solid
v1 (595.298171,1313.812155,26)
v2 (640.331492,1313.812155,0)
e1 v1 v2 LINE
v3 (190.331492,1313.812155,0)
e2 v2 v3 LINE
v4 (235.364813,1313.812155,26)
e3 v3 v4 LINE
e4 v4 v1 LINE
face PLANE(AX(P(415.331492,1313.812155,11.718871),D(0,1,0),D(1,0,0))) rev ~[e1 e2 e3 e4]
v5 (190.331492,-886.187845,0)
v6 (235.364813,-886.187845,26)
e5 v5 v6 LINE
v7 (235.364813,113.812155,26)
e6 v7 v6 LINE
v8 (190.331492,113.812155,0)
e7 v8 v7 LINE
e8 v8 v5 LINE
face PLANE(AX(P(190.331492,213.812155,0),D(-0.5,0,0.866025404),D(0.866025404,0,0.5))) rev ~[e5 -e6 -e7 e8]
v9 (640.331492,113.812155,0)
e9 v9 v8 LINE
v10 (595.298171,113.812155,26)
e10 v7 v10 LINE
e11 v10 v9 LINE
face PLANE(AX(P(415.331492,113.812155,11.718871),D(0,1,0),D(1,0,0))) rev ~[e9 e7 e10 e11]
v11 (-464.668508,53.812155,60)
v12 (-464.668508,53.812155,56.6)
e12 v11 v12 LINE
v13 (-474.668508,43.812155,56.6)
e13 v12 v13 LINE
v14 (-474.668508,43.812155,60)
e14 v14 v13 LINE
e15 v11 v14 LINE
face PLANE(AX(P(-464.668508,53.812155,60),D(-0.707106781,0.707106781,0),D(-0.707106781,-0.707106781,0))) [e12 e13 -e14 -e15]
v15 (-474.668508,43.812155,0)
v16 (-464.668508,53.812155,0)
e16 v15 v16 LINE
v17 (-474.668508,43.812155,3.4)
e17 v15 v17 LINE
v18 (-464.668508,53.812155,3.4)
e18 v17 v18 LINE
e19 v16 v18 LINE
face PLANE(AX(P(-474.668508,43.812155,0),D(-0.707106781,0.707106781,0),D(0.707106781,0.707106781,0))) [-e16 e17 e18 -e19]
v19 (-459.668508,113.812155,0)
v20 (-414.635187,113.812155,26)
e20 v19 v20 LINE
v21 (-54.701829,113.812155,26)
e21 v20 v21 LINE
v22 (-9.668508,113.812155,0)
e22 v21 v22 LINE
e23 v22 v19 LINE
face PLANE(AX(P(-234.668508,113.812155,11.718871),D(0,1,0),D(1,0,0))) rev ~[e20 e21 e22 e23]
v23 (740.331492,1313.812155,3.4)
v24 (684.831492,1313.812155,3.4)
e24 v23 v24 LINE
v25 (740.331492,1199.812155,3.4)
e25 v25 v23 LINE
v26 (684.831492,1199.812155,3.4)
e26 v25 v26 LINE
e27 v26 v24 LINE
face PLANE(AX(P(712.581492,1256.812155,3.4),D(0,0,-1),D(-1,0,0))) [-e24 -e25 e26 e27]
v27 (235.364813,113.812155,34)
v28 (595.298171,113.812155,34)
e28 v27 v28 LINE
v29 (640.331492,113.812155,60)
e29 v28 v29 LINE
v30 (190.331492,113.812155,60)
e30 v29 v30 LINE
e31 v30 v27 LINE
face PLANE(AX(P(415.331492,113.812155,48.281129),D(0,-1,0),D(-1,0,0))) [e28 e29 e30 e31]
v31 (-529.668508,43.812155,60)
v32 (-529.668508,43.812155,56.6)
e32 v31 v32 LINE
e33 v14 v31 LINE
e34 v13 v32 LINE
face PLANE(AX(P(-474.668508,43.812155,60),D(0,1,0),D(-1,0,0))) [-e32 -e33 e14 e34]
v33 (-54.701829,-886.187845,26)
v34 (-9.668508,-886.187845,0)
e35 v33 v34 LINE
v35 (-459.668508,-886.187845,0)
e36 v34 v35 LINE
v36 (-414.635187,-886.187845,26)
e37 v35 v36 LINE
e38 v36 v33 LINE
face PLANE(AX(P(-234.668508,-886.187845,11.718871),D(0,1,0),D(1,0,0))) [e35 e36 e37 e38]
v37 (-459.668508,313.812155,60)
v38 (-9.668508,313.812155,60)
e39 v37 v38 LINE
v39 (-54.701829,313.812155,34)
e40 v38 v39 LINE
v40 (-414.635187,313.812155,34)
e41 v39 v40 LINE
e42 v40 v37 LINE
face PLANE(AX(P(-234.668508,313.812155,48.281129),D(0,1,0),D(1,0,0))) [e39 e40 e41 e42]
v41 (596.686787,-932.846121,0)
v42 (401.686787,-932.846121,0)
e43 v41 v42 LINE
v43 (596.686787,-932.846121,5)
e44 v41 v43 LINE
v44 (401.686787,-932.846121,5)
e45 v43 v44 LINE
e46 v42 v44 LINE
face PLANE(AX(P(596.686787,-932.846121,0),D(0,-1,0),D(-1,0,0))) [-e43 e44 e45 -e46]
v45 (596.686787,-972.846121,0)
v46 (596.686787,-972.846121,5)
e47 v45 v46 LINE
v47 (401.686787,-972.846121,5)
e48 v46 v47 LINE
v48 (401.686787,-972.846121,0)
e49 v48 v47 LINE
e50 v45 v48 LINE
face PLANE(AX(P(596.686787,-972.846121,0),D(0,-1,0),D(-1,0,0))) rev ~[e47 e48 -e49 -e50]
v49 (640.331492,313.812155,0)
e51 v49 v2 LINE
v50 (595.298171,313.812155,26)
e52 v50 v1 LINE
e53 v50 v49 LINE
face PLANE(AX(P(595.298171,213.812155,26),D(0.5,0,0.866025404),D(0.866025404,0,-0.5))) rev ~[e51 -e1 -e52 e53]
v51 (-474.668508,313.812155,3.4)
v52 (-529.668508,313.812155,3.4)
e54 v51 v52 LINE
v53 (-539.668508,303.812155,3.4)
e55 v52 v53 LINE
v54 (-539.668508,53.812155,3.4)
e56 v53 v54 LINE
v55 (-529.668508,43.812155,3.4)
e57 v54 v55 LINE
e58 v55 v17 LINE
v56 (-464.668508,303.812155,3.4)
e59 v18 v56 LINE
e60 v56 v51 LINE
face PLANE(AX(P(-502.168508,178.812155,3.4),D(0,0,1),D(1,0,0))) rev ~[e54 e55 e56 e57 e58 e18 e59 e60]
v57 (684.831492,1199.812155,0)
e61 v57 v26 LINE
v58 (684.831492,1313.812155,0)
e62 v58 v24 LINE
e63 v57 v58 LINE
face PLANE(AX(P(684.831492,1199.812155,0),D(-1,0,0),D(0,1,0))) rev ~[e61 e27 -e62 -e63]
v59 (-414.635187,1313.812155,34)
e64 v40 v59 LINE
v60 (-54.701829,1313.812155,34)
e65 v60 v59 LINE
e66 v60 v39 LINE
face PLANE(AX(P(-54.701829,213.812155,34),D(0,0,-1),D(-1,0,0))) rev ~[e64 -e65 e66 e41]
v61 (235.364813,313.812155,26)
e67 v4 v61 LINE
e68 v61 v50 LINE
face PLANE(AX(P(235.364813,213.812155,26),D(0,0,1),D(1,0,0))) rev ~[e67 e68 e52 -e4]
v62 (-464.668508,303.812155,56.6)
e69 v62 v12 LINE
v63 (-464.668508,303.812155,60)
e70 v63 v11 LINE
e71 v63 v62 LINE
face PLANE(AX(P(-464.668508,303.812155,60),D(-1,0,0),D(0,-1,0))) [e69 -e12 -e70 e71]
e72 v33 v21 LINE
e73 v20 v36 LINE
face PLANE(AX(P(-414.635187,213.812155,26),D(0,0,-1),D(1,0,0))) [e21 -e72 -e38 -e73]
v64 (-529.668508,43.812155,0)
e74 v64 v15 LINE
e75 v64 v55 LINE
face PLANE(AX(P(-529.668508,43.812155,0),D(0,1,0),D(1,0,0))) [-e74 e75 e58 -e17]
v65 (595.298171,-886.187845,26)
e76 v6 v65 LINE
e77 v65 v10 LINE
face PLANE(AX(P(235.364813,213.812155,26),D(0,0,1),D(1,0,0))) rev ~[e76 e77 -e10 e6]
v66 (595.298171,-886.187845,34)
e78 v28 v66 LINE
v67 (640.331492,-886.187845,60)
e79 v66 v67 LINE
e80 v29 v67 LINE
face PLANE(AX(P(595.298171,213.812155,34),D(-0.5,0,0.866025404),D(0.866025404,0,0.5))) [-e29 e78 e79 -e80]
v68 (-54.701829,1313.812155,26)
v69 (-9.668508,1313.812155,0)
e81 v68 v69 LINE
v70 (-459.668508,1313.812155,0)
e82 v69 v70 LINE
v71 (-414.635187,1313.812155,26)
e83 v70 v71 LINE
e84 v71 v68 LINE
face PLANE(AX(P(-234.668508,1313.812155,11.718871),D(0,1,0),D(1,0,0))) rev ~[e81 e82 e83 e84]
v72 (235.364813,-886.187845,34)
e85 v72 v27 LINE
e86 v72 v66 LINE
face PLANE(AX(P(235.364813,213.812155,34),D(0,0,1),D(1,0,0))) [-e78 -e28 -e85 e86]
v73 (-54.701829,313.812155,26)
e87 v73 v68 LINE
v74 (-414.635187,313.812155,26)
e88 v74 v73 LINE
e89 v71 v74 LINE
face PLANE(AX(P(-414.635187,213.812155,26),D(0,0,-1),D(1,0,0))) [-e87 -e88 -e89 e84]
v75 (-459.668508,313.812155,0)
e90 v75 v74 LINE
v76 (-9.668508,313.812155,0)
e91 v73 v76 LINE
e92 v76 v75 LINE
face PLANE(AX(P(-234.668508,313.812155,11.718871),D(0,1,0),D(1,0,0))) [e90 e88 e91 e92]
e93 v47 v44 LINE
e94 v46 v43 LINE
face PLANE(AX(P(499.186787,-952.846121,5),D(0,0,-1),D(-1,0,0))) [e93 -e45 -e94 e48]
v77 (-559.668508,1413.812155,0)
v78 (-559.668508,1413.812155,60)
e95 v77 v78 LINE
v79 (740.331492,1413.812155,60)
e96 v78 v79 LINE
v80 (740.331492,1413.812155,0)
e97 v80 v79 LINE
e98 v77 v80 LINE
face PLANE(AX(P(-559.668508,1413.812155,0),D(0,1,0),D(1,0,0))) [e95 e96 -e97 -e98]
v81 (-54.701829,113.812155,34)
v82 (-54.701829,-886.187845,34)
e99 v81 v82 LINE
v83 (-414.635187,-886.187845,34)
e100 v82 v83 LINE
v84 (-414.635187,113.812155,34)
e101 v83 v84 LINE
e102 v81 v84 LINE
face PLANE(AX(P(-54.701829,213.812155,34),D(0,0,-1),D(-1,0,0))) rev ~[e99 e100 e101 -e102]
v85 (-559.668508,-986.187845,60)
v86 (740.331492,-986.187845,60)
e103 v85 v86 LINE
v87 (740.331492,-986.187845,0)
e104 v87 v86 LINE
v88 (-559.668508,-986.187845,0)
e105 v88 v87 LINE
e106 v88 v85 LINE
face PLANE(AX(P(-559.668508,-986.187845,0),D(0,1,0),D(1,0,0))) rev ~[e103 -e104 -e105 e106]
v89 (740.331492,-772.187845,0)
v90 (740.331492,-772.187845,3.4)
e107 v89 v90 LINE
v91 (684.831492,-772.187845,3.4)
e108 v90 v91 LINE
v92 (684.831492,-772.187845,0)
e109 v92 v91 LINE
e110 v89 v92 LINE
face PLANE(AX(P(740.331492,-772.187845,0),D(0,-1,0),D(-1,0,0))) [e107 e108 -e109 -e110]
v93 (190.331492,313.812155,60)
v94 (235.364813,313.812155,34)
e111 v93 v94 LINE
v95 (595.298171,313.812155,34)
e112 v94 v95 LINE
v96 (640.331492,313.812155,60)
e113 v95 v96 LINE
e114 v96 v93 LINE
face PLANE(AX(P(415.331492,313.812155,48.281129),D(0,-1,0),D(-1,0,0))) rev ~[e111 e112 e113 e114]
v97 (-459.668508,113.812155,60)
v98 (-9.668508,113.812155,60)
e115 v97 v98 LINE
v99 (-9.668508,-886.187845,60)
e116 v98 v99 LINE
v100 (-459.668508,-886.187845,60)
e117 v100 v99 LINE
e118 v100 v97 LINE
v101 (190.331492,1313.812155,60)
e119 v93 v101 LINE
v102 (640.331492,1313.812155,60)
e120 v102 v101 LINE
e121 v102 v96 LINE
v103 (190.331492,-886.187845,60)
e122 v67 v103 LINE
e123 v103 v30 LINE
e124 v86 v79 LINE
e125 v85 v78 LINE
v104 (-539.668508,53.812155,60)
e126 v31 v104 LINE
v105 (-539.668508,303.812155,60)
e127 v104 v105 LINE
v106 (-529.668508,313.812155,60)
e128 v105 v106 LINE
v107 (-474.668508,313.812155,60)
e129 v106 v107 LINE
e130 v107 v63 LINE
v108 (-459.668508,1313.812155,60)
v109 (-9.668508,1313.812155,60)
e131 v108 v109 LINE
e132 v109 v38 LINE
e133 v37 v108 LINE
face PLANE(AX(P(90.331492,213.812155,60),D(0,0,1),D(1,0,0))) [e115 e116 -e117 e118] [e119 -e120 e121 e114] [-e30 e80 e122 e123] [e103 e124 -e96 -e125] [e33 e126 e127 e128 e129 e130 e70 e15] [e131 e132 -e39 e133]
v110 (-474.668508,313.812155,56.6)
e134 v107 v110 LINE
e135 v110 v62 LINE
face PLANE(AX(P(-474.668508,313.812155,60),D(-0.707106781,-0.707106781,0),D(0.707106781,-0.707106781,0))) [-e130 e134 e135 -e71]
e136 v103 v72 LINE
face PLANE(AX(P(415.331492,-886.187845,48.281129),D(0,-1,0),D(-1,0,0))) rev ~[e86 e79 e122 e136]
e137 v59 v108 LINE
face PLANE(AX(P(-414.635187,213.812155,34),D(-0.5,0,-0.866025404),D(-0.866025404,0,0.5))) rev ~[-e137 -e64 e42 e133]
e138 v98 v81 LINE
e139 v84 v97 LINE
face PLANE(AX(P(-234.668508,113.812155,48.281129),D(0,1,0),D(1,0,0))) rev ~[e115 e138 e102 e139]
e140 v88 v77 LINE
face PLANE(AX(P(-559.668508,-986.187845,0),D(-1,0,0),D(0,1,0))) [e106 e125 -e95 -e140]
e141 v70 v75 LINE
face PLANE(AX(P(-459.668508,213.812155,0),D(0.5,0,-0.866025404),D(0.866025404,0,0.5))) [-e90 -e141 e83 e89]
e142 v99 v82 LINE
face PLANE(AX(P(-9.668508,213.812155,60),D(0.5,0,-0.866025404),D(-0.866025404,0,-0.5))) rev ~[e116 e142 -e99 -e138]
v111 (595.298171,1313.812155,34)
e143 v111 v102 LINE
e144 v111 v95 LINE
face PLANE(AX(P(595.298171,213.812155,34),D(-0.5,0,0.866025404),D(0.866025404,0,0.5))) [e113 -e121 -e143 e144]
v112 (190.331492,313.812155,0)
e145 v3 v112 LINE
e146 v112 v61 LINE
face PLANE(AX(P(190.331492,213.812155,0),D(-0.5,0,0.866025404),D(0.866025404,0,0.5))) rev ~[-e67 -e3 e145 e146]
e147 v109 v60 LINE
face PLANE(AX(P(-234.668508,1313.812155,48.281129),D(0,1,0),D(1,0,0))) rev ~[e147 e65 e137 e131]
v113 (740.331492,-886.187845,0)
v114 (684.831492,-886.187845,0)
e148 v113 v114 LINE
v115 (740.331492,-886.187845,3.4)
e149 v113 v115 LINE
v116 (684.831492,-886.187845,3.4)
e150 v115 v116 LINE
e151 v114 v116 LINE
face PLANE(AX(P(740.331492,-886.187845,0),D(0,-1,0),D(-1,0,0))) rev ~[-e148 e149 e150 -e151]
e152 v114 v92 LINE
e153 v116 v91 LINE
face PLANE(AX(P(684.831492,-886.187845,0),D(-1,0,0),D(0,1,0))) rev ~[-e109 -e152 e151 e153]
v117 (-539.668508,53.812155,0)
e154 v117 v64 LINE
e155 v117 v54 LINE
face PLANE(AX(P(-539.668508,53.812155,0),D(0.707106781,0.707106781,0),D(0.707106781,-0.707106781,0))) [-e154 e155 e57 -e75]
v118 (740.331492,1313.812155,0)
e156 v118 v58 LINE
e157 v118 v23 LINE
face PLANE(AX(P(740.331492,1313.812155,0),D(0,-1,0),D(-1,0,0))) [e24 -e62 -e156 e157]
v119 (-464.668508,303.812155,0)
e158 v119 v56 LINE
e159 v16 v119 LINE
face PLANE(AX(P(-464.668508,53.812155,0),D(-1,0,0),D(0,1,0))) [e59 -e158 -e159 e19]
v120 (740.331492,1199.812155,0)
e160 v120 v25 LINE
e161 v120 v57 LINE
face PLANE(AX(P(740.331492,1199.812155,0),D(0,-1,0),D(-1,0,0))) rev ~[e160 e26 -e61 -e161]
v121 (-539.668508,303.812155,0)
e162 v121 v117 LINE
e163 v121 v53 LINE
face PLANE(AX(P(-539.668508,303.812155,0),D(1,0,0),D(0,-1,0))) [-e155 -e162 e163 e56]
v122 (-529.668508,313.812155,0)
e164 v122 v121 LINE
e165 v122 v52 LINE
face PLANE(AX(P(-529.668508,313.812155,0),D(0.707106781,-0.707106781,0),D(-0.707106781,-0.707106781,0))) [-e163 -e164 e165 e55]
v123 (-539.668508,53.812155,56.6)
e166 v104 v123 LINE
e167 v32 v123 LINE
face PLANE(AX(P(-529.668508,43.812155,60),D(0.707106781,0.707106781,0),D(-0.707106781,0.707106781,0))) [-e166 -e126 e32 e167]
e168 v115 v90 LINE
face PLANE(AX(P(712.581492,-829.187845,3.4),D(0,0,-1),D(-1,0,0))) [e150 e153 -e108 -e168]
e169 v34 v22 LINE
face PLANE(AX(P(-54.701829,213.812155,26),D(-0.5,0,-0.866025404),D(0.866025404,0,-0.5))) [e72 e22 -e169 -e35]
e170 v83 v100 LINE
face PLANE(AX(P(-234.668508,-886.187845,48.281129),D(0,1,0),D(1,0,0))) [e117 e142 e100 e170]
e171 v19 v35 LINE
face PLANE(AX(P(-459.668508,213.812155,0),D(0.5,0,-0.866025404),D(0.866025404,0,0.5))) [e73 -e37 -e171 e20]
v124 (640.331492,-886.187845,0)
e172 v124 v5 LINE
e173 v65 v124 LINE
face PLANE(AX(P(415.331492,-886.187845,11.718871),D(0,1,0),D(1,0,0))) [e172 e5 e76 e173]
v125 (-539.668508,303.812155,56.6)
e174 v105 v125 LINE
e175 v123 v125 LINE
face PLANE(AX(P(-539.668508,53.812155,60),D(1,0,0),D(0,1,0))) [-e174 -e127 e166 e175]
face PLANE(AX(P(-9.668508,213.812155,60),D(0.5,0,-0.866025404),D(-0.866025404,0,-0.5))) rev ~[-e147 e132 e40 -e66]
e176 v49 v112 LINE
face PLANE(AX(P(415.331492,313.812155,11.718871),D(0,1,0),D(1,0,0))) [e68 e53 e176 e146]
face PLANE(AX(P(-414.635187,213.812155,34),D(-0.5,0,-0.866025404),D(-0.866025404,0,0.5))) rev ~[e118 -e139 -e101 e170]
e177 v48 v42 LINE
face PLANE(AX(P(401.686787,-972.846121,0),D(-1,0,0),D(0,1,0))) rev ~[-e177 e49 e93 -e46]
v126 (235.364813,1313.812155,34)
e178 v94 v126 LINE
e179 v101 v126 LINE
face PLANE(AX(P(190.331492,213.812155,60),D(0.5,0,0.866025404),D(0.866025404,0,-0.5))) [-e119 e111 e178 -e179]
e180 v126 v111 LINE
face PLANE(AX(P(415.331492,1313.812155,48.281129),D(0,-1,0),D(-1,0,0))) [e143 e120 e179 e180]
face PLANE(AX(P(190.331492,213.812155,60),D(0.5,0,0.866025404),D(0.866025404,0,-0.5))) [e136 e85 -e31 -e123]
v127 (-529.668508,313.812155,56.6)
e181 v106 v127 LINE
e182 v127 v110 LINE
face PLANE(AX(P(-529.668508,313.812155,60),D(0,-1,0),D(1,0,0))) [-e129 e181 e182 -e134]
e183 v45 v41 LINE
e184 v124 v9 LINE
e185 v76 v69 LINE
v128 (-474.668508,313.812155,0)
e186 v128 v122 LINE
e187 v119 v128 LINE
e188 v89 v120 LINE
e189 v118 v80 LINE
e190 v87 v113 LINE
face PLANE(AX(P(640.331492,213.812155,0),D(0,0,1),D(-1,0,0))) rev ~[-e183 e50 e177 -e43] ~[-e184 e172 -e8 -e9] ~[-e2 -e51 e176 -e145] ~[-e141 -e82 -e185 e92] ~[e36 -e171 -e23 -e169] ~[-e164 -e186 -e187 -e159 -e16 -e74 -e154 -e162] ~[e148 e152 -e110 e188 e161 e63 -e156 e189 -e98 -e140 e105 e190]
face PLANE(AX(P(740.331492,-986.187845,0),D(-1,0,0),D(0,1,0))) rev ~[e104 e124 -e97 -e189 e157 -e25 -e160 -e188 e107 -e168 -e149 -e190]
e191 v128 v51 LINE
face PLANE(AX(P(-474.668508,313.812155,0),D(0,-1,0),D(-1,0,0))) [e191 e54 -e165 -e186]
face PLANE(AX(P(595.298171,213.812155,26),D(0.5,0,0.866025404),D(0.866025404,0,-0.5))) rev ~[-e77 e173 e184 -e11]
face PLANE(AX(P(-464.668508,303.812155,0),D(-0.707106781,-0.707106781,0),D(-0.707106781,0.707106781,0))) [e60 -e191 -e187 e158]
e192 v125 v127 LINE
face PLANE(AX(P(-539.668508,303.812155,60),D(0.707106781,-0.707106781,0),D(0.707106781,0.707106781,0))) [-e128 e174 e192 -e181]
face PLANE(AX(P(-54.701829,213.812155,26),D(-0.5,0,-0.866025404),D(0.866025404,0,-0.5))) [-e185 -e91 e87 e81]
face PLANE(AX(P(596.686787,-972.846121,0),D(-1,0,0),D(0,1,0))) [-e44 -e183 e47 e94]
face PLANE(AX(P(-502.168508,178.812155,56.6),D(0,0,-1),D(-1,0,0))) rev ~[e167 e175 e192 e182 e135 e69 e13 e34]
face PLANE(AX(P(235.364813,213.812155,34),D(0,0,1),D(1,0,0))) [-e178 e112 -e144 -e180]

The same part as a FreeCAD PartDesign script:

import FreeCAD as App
import Part
import Sketcher
from FreeCAD import Vector
Q = App.Units.Quantity

doc = App.newDocument("Part")
params = doc.addObject("Spreadsheet::Sheet", "Params")
for row, (alias, value) in enumerate([
    ("sketch1_width", "1300 mm"),
    ("sketch1_height", "2400 mm"),
    ("pad1_length", "60 mm"),
    ("sketch2_width", "450 mm"),
    ("sketch2_length", "52 mm"),
    ("pocket1_length", "1100 mm"),
    ("pocket1_length2", "1100 mm"),
    ("sketch3_width", "450 mm"),
    ("sketch3_length", "52 mm"),
    ("pad2_length", "100 mm"),
    ("pad2_length2", "100 mm"),
    ("sketch4_width", "55 mm"),
    ("sketch4_height", "114 mm"),
    ("sketch4_height2", "250 mm"),
    ("sketch4_width2", "55.5 mm"),
    ("pocket2_length", "3.4 mm"),
    ("sketch5_width", "55 mm"),
    ("sketch5_height", "250 mm"),
    ("pocket3_length", "3.4 mm"),
    ("sketch6_width", "195 mm"),
    ("sketch6_height", "40 mm"),
    ("pocket4_length", "5 mm"),
], start=1):
    params.set(f"A{row}", alias)
    params.set(f"B{row}", "=" + value)
    params.setAlias(f"B{row}", alias)

body = doc.addObject("PartDesign::Body", "Body")

# Sketch on XY plane
sketch1 = body.newObject("Sketcher::SketchObject", "Sketch")
sketch1.AttachmentSupport = (doc.getObject("XY_Plane"), [""])
sketch1.MapMode = "FlatFace"
sketch1.addGeometry(Part.LineSegment(Vector(-559.668508, 1413.812155, 0), Vector(-559.668508, -986.187845, 0)), False)
sketch1.addGeometry(Part.LineSegment(Vector(-559.668508, -986.187845, 0), Vector(740.331492, -986.187845, 0)), False)
sketch1.addGeometry(Part.LineSegment(Vector(740.331492, -986.187845, 0), Vector(740.331492, 1413.812155, 0)), False)
sketch1.addGeometry(Part.LineSegment(Vector(740.331492, 1413.812155, 0), Vector(-559.668508, 1413.812155, 0)), False)
sketch1.addConstraint(Sketcher.Constraint("Coincident", 0, 2, 1, 1))
sketch1.addConstraint(Sketcher.Constraint("Coincident", 1, 2, 2, 1))
sketch1.addConstraint(Sketcher.Constraint("Coincident", 2, 2, 3, 1))
sketch1.addConstraint(Sketcher.Constraint("Coincident", 3, 2, 0, 1))
sketch1.addConstraint(Sketcher.Constraint("Vertical", 0))
sketch1.addConstraint(Sketcher.Constraint("Horizontal", 1))
sketch1.addConstraint(Sketcher.Constraint("Vertical", 2))
sketch1.addConstraint(Sketcher.Constraint("Horizontal", 3))
sketch1.addConstraint(Sketcher.Constraint("DistanceX", 1, 1, 1, 2, Q("1300 mm")))
sketch1.addConstraint(Sketcher.Constraint("DistanceY", 0, 2, 0, 1, Q("2400 mm")))
sketch1.addConstraint(Sketcher.Constraint("DistanceX", 0, 2, -1, 1, Q("559.668508 mm")))
sketch1.addConstraint(Sketcher.Constraint("DistanceY", 0, 2, -1, 1, Q("986.187845 mm")))
sketch1.setExpression("Constraints[8]", "Params.sketch1_width")
sketch1.setExpression("Constraints[9]", "Params.sketch1_height")
pad1 = body.newObject("PartDesign::Pad", "Pad")
pad1.Profile = sketch1
pad1.setExpression("Length", "Params.pad1_length")

# Sketch on XZ plane
sketch2 = body.newObject("Sketcher::SketchObject", "Sketch001")
sketch2.AttachmentSupport = (doc.getObject("XZ_Plane"), [""])
sketch2.MapMode = "FlatFace"
sketch2.AttachmentOffset = App.Placement(Vector(0, 0, -213.812155), App.Rotation())
sketch2.addGeometry(Part.LineSegment(Vector(235.364813, 26, 0), Vector(190.331492, 0, 0)), False)
sketch2.addGeometry(Part.LineSegment(Vector(190.331492, 0, 0), Vector(640.331492, 0, 0)), False)
sketch2.addGeometry(Part.LineSegment(Vector(640.331492, 0, 0), Vector(595.298171, 26, 0)), False)
sketch2.addGeometry(Part.LineSegment(Vector(595.298171, 26, 0), Vector(235.364813, 26, 0)), False)
sketch2.addGeometry(Part.LineSegment(Vector(-459.668508, 0, 0), Vector(-9.668508, 0, 0)), False)
sketch2.addGeometry(Part.LineSegment(Vector(-9.668508, 0, 0), Vector(-54.701829, 26, 0)), False)
sketch2.addGeometry(Part.LineSegment(Vector(-54.701829, 26, 0), Vector(-414.635187, 26, 0)), False)
sketch2.addGeometry(Part.LineSegment(Vector(-414.635187, 26, 0), Vector(-459.668508, 0, 0)), False)
sketch2.addGeometry(Part.LineSegment(Vector(-459.668508, 60, 0), Vector(-414.635187, 34, 0)), False)
sketch2.addGeometry(Part.LineSegment(Vector(-414.635187, 34, 0), Vector(-54.701829, 34, 0)), False)
sketch2.addGeometry(Part.LineSegment(Vector(-54.701829, 34, 0), Vector(-9.668508, 60, 0)), False)
sketch2.addGeometry(Part.LineSegment(Vector(-9.668508, 60, 0), Vector(-459.668508, 60, 0)), False)
sketch2.addGeometry(Part.LineSegment(Vector(190.331492, 60, 0), Vector(235.364813, 34, 0)), False)
sketch2.addGeometry(Part.LineSegment(Vector(235.364813, 34, 0), Vector(595.298171, 34, 0)), False)
sketch2.addGeometry(Part.LineSegment(Vector(595.298171, 34, 0), Vector(640.331492, 60, 0)), False)
sketch2.addGeometry(Part.LineSegment(Vector(640.331492, 60, 0), Vector(190.331492, 60, 0)), False)
sketch2.addConstraint(Sketcher.Constraint("Coincident", 0, 2, 1, 1))
sketch2.addConstraint(Sketcher.Constraint("Coincident", 1, 2, 2, 1))
sketch2.addConstraint(Sketcher.Constraint("Coincident", 2, 2, 3, 1))
sketch2.addConstraint(Sketcher.Constraint("Coincident", 3, 2, 0, 1))
sketch2.addConstraint(Sketcher.Constraint("Coincident", 4, 2, 5, 1))
sketch2.addConstraint(Sketcher.Constraint("Coincident", 5, 2, 6, 1))
sketch2.addConstraint(Sketcher.Constraint("Coincident", 6, 2, 7, 1))
sketch2.addConstraint(Sketcher.Constraint("Coincident", 7, 2, 4, 1))
sketch2.addConstraint(Sketcher.Constraint("Coincident", 8, 2, 9, 1))
sketch2.addConstraint(Sketcher.Constraint("Coincident", 9, 2, 10, 1))
sketch2.addConstraint(Sketcher.Constraint("Coincident", 10, 2, 11, 1))
sketch2.addConstraint(Sketcher.Constraint("Coincident", 11, 2, 8, 1))
sketch2.addConstraint(Sketcher.Constraint("Coincident", 12, 2, 13, 1))
sketch2.addConstraint(Sketcher.Constraint("Coincident", 13, 2, 14, 1))
sketch2.addConstraint(Sketcher.Constraint("Coincident", 14, 2, 15, 1))
sketch2.addConstraint(Sketcher.Constraint("Coincident", 15, 2, 12, 1))
sketch2.addConstraint(Sketcher.Constraint("Horizontal", 1))
sketch2.addConstraint(Sketcher.Constraint("Horizontal", 3))
sketch2.addConstraint(Sketcher.Constraint("Horizontal", 4))
sketch2.addConstraint(Sketcher.Constraint("Horizontal", 6))
sketch2.addConstraint(Sketcher.Constraint("Horizontal", 9))
sketch2.addConstraint(Sketcher.Constraint("Horizontal", 11))
sketch2.addConstraint(Sketcher.Constraint("Horizontal", 13))
sketch2.addConstraint(Sketcher.Constraint("Horizontal", 15))
sketch2.addConstraint(Sketcher.Constraint("PointOnObject", 0, 2, -1))
sketch2.addConstraint(Sketcher.Constraint("PointOnObject", 4, 2, -1))
sketch2.addConstraint(Sketcher.Constraint("Parallel", 2, 5))
sketch2.addConstraint(Sketcher.Constraint("Parallel", 0, 7))
sketch2.addConstraint(Sketcher.Constraint("Parallel", 5, 8))
sketch2.addConstraint(Sketcher.Constraint("Parallel", 7, 10))
sketch2.addConstraint(Sketcher.Constraint("Parallel", 8, 12))
sketch2.addConstraint(Sketcher.Constraint("Parallel", 10, 14))
sketch2.addConstraint(Sketcher.Constraint("Horizontal", 3, 2, 5, 2))
sketch2.addConstraint(Sketcher.Constraint("Horizontal", 9, 2, 12, 2))
sketch2.addConstraint(Sketcher.Constraint("Horizontal", 11, 2, 14, 2))
sketch2.addConstraint(Sketcher.Constraint("Vertical", 6, 2, 8, 2))
sketch2.addConstraint(Sketcher.Constraint("Vertical", 5, 2, 9, 2))
sketch2.addConstraint(Sketcher.Constraint("Vertical", 4, 2, 10, 2))
sketch2.addConstraint(Sketcher.Constraint("Vertical", 7, 2, 11, 2))
sketch2.addConstraint(Sketcher.Constraint("Vertical", 3, 2, 12, 2))
sketch2.addConstraint(Sketcher.Constraint("Vertical", 2, 2, 13, 2))
sketch2.addConstraint(Sketcher.Constraint("Equal", 1, 4))
sketch2.addConstraint(Sketcher.Constraint("DistanceX", 1, 1, 1, 2, Q("450 mm")))
sketch2.addConstraint(Sketcher.Constraint("Angle", 0, Q("-150 deg")))
sketch2.addConstraint(Sketcher.Constraint("Distance", 0, Q("52 mm")))
sketch2.addConstraint(Sketcher.Constraint("DistanceY", -1, 1, 8, 2, Q("34 mm")))
sketch2.addConstraint(Sketcher.Constraint("DistanceX", 4, 2, 0, 2, Q("200 mm")))
sketch2.addConstraint(Sketcher.Constraint("DistanceX", -1, 1, 0, 2, Q("190.331492 mm")))
sketch2.setExpression("Constraints[42]", "Params.sketch2_width")
sketch2.setExpression("Constraints[44]", "Params.sketch2_length")
pocket1 = body.newObject("PartDesign::Pocket", "Pocket")
pocket1.Profile = sketch2
pocket1.Type = "TwoLengths"
pocket1.setExpression("Length", "Params.pocket1_length")
pocket1.setExpression("Length2", "Params.pocket1_length2")
pocket1.Reversed = True

# Sketch on XZ plane
sketch3 = body.newObject("Sketcher::SketchObject", "Sketch002")
sketch3.AttachmentSupport = (doc.getObject("XZ_Plane"), [""])
sketch3.MapMode = "FlatFace"
sketch3.AttachmentOffset = App.Placement(Vector(0, 0, -213.812155), App.Rotation())
sketch3.addGeometry(Part.LineSegment(Vector(235.364813, 26, 0), Vector(190.331492, 0, 0)), False)
sketch3.addGeometry(Part.LineSegment(Vector(190.331492, 0, 0), Vector(640.331492, 0, 0)), False)
sketch3.addGeometry(Part.LineSegment(Vector(640.331492, 0, 0), Vector(595.298171, 26, 0)), False)
sketch3.addGeometry(Part.LineSegment(Vector(595.298171, 26, 0), Vector(235.364813, 26, 0)), False)
sketch3.addGeometry(Part.LineSegment(Vector(-459.668508, 0, 0), Vector(-9.668508, 0, 0)), False)
sketch3.addGeometry(Part.LineSegment(Vector(-9.668508, 0, 0), Vector(-54.701829, 26, 0)), False)
sketch3.addGeometry(Part.LineSegment(Vector(-54.701829, 26, 0), Vector(-414.635187, 26, 0)), False)
sketch3.addGeometry(Part.LineSegment(Vector(-414.635187, 26, 0), Vector(-459.668508, 0, 0)), False)
sketch3.addGeometry(Part.LineSegment(Vector(-459.668508, 60, 0), Vector(-414.635187, 34, 0)), False)
sketch3.addGeometry(Part.LineSegment(Vector(-414.635187, 34, 0), Vector(-54.701829, 34, 0)), False)
sketch3.addGeometry(Part.LineSegment(Vector(-54.701829, 34, 0), Vector(-9.668508, 60, 0)), False)
sketch3.addGeometry(Part.LineSegment(Vector(-9.668508, 60, 0), Vector(-459.668508, 60, 0)), False)
sketch3.addGeometry(Part.LineSegment(Vector(190.331492, 60, 0), Vector(235.364813, 34, 0)), False)
sketch3.addGeometry(Part.LineSegment(Vector(235.364813, 34, 0), Vector(595.298171, 34, 0)), False)
sketch3.addGeometry(Part.LineSegment(Vector(595.298171, 34, 0), Vector(640.331492, 60, 0)), False)
sketch3.addGeometry(Part.LineSegment(Vector(640.331492, 60, 0), Vector(190.331492, 60, 0)), False)
sketch3.addConstraint(Sketcher.Constraint("Coincident", 0, 2, 1, 1))
sketch3.addConstraint(Sketcher.Constraint("Coincident", 1, 2, 2, 1))
sketch3.addConstraint(Sketcher.Constraint("Coincident", 2, 2, 3, 1))
sketch3.addConstraint(Sketcher.Constraint("Coincident", 3, 2, 0, 1))
sketch3.addConstraint(Sketcher.Constraint("Coincident", 4, 2, 5, 1))
sketch3.addConstraint(Sketcher.Constraint("Coincident", 5, 2, 6, 1))
sketch3.addConstraint(Sketcher.Constraint("Coincident", 6, 2, 7, 1))
sketch3.addConstraint(Sketcher.Constraint("Coincident", 7, 2, 4, 1))
sketch3.addConstraint(Sketcher.Constraint("Coincident", 8, 2, 9, 1))
sketch3.addConstraint(Sketcher.Constraint("Coincident", 9, 2, 10, 1))
sketch3.addConstraint(Sketcher.Constraint("Coincident", 10, 2, 11, 1))
sketch3.addConstraint(Sketcher.Constraint("Coincident", 11, 2, 8, 1))
sketch3.addConstraint(Sketcher.Constraint("Coincident", 12, 2, 13, 1))
sketch3.addConstraint(Sketcher.Constraint("Coincident", 13, 2, 14, 1))
sketch3.addConstraint(Sketcher.Constraint("Coincident", 14, 2, 15, 1))
sketch3.addConstraint(Sketcher.Constraint("Coincident", 15, 2, 12, 1))
sketch3.addConstraint(Sketcher.Constraint("Horizontal", 1))
sketch3.addConstraint(Sketcher.Constraint("Horizontal", 3))
sketch3.addConstraint(Sketcher.Constraint("Horizontal", 4))
sketch3.addConstraint(Sketcher.Constraint("Horizontal", 6))
sketch3.addConstraint(Sketcher.Constraint("Horizontal", 9))
sketch3.addConstraint(Sketcher.Constraint("Horizontal", 11))
sketch3.addConstraint(Sketcher.Constraint("Horizontal", 13))
sketch3.addConstraint(Sketcher.Constraint("Horizontal", 15))
sketch3.addConstraint(Sketcher.Constraint("PointOnObject", 0, 2, -1))
sketch3.addConstraint(Sketcher.Constraint("PointOnObject", 4, 2, -1))
sketch3.addConstraint(Sketcher.Constraint("Parallel", 2, 5))
sketch3.addConstraint(Sketcher.Constraint("Parallel", 0, 7))
sketch3.addConstraint(Sketcher.Constraint("Parallel", 5, 8))
sketch3.addConstraint(Sketcher.Constraint("Parallel", 7, 10))
sketch3.addConstraint(Sketcher.Constraint("Parallel", 8, 12))
sketch3.addConstraint(Sketcher.Constraint("Parallel", 10, 14))
sketch3.addConstraint(Sketcher.Constraint("Horizontal", 3, 2, 5, 2))
sketch3.addConstraint(Sketcher.Constraint("Horizontal", 9, 2, 12, 2))
sketch3.addConstraint(Sketcher.Constraint("Horizontal", 11, 2, 14, 2))
sketch3.addConstraint(Sketcher.Constraint("Vertical", 6, 2, 8, 2))
sketch3.addConstraint(Sketcher.Constraint("Vertical", 5, 2, 9, 2))
sketch3.addConstraint(Sketcher.Constraint("Vertical", 4, 2, 10, 2))
sketch3.addConstraint(Sketcher.Constraint("Vertical", 7, 2, 11, 2))
sketch3.addConstraint(Sketcher.Constraint("Vertical", 3, 2, 12, 2))
sketch3.addConstraint(Sketcher.Constraint("Vertical", 2, 2, 13, 2))
sketch3.addConstraint(Sketcher.Constraint("Equal", 1, 4))
sketch3.addConstraint(Sketcher.Constraint("DistanceX", 1, 1, 1, 2, Q("450 mm")))
sketch3.addConstraint(Sketcher.Constraint("Angle", 0, Q("-150 deg")))
sketch3.addConstraint(Sketcher.Constraint("Distance", 0, Q("52 mm")))
sketch3.addConstraint(Sketcher.Constraint("DistanceY", -1, 1, 8, 2, Q("34 mm")))
sketch3.addConstraint(Sketcher.Constraint("DistanceX", 4, 2, 0, 2, Q("200 mm")))
sketch3.addConstraint(Sketcher.Constraint("DistanceX", -1, 1, 0, 2, Q("190.331492 mm")))
sketch3.setExpression("Constraints[42]", "Params.sketch3_width")
sketch3.setExpression("Constraints[44]", "Params.sketch3_length")
pad2 = body.newObject("PartDesign::Pad", "Pad001")
pad2.Profile = sketch3
pad2.Type = "TwoLengths"
pad2.setExpression("Length", "Params.pad2_length")
pad2.setExpression("Length2", "Params.pad2_length2")

# Sketch on XY plane
sketch4 = body.newObject("Sketcher::SketchObject", "Sketch003")
sketch4.AttachmentSupport = (doc.getObject("XY_Plane"), [""])
sketch4.MapMode = "FlatFace"
sketch4.addGeometry(Part.LineSegment(Vector(740.331492, 1313.812155, 0), Vector(740.331492, 1199.812155, 0)), False)
sketch4.addGeometry(Part.LineSegment(Vector(740.331492, 1199.812155, 0), Vector(684.831492, 1199.812155, 0)), False)
sketch4.addGeometry(Part.LineSegment(Vector(684.831492, 1199.812155, 0), Vector(684.831492, 1313.812155, 0)), False)
sketch4.addGeometry(Part.LineSegment(Vector(684.831492, 1313.812155, 0), Vector(740.331492, 1313.812155, 0)), False)
sketch4.addGeometry(Part.LineSegment(Vector(740.331492, -772.187845, 0), Vector(740.331492, -886.187845, 0)), False)
sketch4.addGeometry(Part.LineSegment(Vector(740.331492, -886.187845, 0), Vector(684.831492, -886.187845, 0)), False)
sketch4.addGeometry(Part.LineSegment(Vector(684.831492, -886.187845, 0), Vector(684.831492, -772.187845, 0)), False)
sketch4.addGeometry(Part.LineSegment(Vector(684.831492, -772.187845, 0), Vector(740.331492, -772.187845, 0)), False)
sketch4.addGeometry(Part.LineSegment(Vector(-529.668508, 313.812155, 0), Vector(-474.668508, 313.812155, 0)), False)
sketch4.addGeometry(Part.LineSegment(Vector(-474.668508, 313.812155, 0), Vector(-464.668508, 303.812155, 0)), False)
sketch4.addGeometry(Part.LineSegment(Vector(-464.668508, 303.812155, 0), Vector(-464.668508, 53.812155, 0)), False)
sketch4.addGeometry(Part.LineSegment(Vector(-464.668508, 53.812155, 0), Vector(-474.668508, 43.812155, 0)), False)
sketch4.addGeometry(Part.LineSegment(Vector(-474.668508, 43.812155, 0), Vector(-529.668508, 43.812155, 0)), False)
sketch4.addGeometry(Part.LineSegment(Vector(-529.668508, 43.812155, 0), Vector(-539.668508, 53.812155, 0)), False)
sketch4.addGeometry(Part.LineSegment(Vector(-539.668508, 53.812155, 0), Vector(-539.668508, 303.812155, 0)), False)
sketch4.addGeometry(Part.LineSegment(Vector(-539.668508, 303.812155, 0), Vector(-529.668508, 313.812155, 0)), False)
sketch4.addConstraint(Sketcher.Constraint("Coincident", 0, 2, 1, 1))
sketch4.addConstraint(Sketcher.Constraint("Coincident", 1, 2, 2, 1))
sketch4.addConstraint(Sketcher.Constraint("Coincident", 2, 2, 3, 1))
sketch4.addConstraint(Sketcher.Constraint("Coincident", 3, 2, 0, 1))
sketch4.addConstraint(Sketcher.Constraint("Coincident", 4, 2, 5, 1))
sketch4.addConstraint(Sketcher.Constraint("Coincident", 5, 2, 6, 1))
sketch4.addConstraint(Sketcher.Constraint("Coincident", 6, 2, 7, 1))
sketch4.addConstraint(Sketcher.Constraint("Coincident", 7, 2, 4, 1))
sketch4.addConstraint(Sketcher.Constraint("Coincident", 8, 2, 9, 1))
sketch4.addConstraint(Sketcher.Constraint("Coincident", 9, 2, 10, 1))
sketch4.addConstraint(Sketcher.Constraint("Coincident", 10, 2, 11, 1))
sketch4.addConstraint(Sketcher.Constraint("Coincident", 11, 2, 12, 1))
sketch4.addConstraint(Sketcher.Constraint("Coincident", 12, 2, 13, 1))
sketch4.addConstraint(Sketcher.Constraint("Coincident", 13, 2, 14, 1))
sketch4.addConstraint(Sketcher.Constraint("Coincident", 14, 2, 15, 1))
sketch4.addConstraint(Sketcher.Constraint("Coincident", 15, 2, 8, 1))
sketch4.addConstraint(Sketcher.Constraint("Vertical", 0))
sketch4.addConstraint(Sketcher.Constraint("Horizontal", 1))
sketch4.addConstraint(Sketcher.Constraint("Vertical", 2))
sketch4.addConstraint(Sketcher.Constraint("Horizontal", 3))
sketch4.addConstraint(Sketcher.Constraint("Vertical", 4))
sketch4.addConstraint(Sketcher.Constraint("Horizontal", 5))
sketch4.addConstraint(Sketcher.Constraint("Vertical", 6))
sketch4.addConstraint(Sketcher.Constraint("Horizontal", 7))
sketch4.addConstraint(Sketcher.Constraint("Horizontal", 8))
sketch4.addConstraint(Sketcher.Constraint("Vertical", 10))
sketch4.addConstraint(Sketcher.Constraint("Horizontal", 12))
sketch4.addConstraint(Sketcher.Constraint("Vertical", 14))
sketch4.addConstraint(Sketcher.Constraint("Perpendicular", 9, 11))
sketch4.addConstraint(Sketcher.Constraint("Perpendicular", 11, 13))
sketch4.addConstraint(Sketcher.Constraint("Perpendicular", 13, 15))
sketch4.addConstraint(Sketcher.Constraint("Horizontal", 10, 2, 13, 2))
sketch4.addConstraint(Sketcher.Constraint("Horizontal", 9, 2, 14, 2))
sketch4.addConstraint(Sketcher.Constraint("Vertical", 3, 2, 4, 2))
sketch4.addConstraint(Sketcher.Constraint("Vertical", 2, 2, 5, 2))
sketch4.addConstraint(Sketcher.Constraint("Vertical", 8, 2, 11, 2))
sketch4.addConstraint(Sketcher.Constraint("Vertical", 12, 2, 15, 2))
sketch4.addConstraint(Sketcher.Constraint("Equal", 2, 4))
sketch4.addConstraint(Sketcher.Constraint("DistanceX", 8, 1, 8, 2, Q("55 mm")))
sketch4.addConstraint(Sketcher.Constraint("DistanceY", 0, 2, 0, 1, Q("114 mm")))
sketch4.addConstraint(Sketcher.Constraint("DistanceY", 10, 2, 10, 1, Q("250 mm")))
sketch4.addConstraint(Sketcher.Constraint("DistanceX", 1, 2, 1, 1, Q("55.5 mm")))
sketch4.addConstraint(Sketcher.Constraint("DistanceY", 4, 2, 0, 2, Q("2086 mm")))
sketch4.addConstraint(Sketcher.Constraint("DistanceY", 8, 2, 1, 2, Q("886 mm")))
sketch4.addConstraint(Sketcher.Constraint("DistanceX", 8, 2, 0, 2, Q("1215 mm")))
sketch4.addConstraint(Sketcher.Constraint("DistanceX", 8, 2, 9, 2, Q("10 mm")))
sketch4.addConstraint(Sketcher.Constraint("DistanceX", -1, 1, 0, 2, Q("740.331492 mm")))
sketch4.addConstraint(Sketcher.Constraint("DistanceY", -1, 1, 0, 2, Q("1199.812155 mm")))
sketch4.setExpression("Constraints[38]", "Params.sketch4_width")
sketch4.setExpression("Constraints[39]", "Params.sketch4_height")
sketch4.setExpression("Constraints[40]", "Params.sketch4_height2")
sketch4.setExpression("Constraints[41]", "Params.sketch4_width2")
pocket2 = body.newObject("PartDesign::Pocket", "Pocket001")
pocket2.Profile = sketch4
pocket2.setExpression("Length", "Params.pocket2_length")
pocket2.Reversed = True

# Sketch on XY plane
sketch5 = body.newObject("Sketcher::SketchObject", "Sketch004")
sketch5.AttachmentSupport = (doc.getObject("XY_Plane"), [""])
sketch5.MapMode = "FlatFace"
sketch5.AttachmentOffset = App.Placement(Vector(0, 0, 60), App.Rotation())
sketch5.addGeometry(Part.LineSegment(Vector(-474.668508, 313.812155, 0), Vector(-529.668508, 313.812155, 0)), False)
sketch5.addGeometry(Part.LineSegment(Vector(-529.668508, 313.812155, 0), Vector(-539.668508, 303.812155, 0)), False)
sketch5.addGeometry(Part.LineSegment(Vector(-539.668508, 303.812155, 0), Vector(-539.668508, 53.812155, 0)), False)
sketch5.addGeometry(Part.LineSegment(Vector(-539.668508, 53.812155, 0), Vector(-529.668508, 43.812155, 0)), False)
sketch5.addGeometry(Part.LineSegment(Vector(-529.668508, 43.812155, 0), Vector(-474.668508, 43.812155, 0)), False)
sketch5.addGeometry(Part.LineSegment(Vector(-474.668508, 43.812155, 0), Vector(-464.668508, 53.812155, 0)), False)
sketch5.addGeometry(Part.LineSegment(Vector(-464.668508, 53.812155, 0), Vector(-464.668508, 303.812155, 0)), False)
sketch5.addGeometry(Part.LineSegment(Vector(-464.668508, 303.812155, 0), Vector(-474.668508, 313.812155, 0)), False)
sketch5.addConstraint(Sketcher.Constraint("Coincident", 0, 2, 1, 1))
sketch5.addConstraint(Sketcher.Constraint("Coincident", 1, 2, 2, 1))
sketch5.addConstraint(Sketcher.Constraint("Coincident", 2, 2, 3, 1))
sketch5.addConstraint(Sketcher.Constraint("Coincident", 3, 2, 4, 1))
sketch5.addConstraint(Sketcher.Constraint("Coincident", 4, 2, 5, 1))
sketch5.addConstraint(Sketcher.Constraint("Coincident", 5, 2, 6, 1))
sketch5.addConstraint(Sketcher.Constraint("Coincident", 6, 2, 7, 1))
sketch5.addConstraint(Sketcher.Constraint("Coincident", 7, 2, 0, 1))
sketch5.addConstraint(Sketcher.Constraint("Horizontal", 0))
sketch5.addConstraint(Sketcher.Constraint("Vertical", 2))
sketch5.addConstraint(Sketcher.Constraint("Horizontal", 4))
sketch5.addConstraint(Sketcher.Constraint("Vertical", 6))
sketch5.addConstraint(Sketcher.Constraint("Perpendicular", 1, 3))
sketch5.addConstraint(Sketcher.Constraint("Perpendicular", 3, 5))
sketch5.addConstraint(Sketcher.Constraint("Perpendicular", 5, 7))
sketch5.addConstraint(Sketcher.Constraint("Horizontal", 2, 2, 5, 2))
sketch5.addConstraint(Sketcher.Constraint("Horizontal", 1, 2, 6, 2))
sketch5.addConstraint(Sketcher.Constraint("Vertical", 0, 2, 3, 2))
sketch5.addConstraint(Sketcher.Constraint("Vertical", 4, 2, 7, 2))
sketch5.addConstraint(Sketcher.Constraint("DistanceX", 0, 2, 0, 1, Q("55 mm")))
sketch5.addConstraint(Sketcher.Constraint("DistanceY", 2, 2, 2, 1, Q("250 mm")))
sketch5.addConstraint(Sketcher.Constraint("DistanceX", 1, 2, 0, 2, Q("10 mm")))
sketch5.addConstraint(Sketcher.Constraint("DistanceX", 0, 2, -1, 1, Q("529.668508 mm")))
sketch5.addConstraint(Sketcher.Constraint("DistanceY", -1, 1, 0, 2, Q("313.812155 mm")))
sketch5.setExpression("Constraints[19]", "Params.sketch5_width")
sketch5.setExpression("Constraints[20]", "Params.sketch5_height")
pocket3 = body.newObject("PartDesign::Pocket", "Pocket002")
pocket3.Profile = sketch5
pocket3.setExpression("Length", "Params.pocket3_length")

# Sketch on XY plane
sketch6 = body.newObject("Sketcher::SketchObject", "Sketch005")
sketch6.AttachmentSupport = (doc.getObject("XY_Plane"), [""])
sketch6.MapMode = "FlatFace"
sketch6.addGeometry(Part.LineSegment(Vector(596.686787, -932.846121, 0), Vector(596.686787, -972.846121, 0)), False)
sketch6.addGeometry(Part.LineSegment(Vector(596.686787, -972.846121, 0), Vector(401.686787, -972.846121, 0)), False)
sketch6.addGeometry(Part.LineSegment(Vector(401.686787, -972.846121, 0), Vector(401.686787, -932.846121, 0)), False)
sketch6.addGeometry(Part.LineSegment(Vector(401.686787, -932.846121, 0), Vector(596.686787, -932.846121, 0)), False)
sketch6.addConstraint(Sketcher.Constraint("Coincident", 0, 2, 1, 1))
sketch6.addConstraint(Sketcher.Constraint("Coincident", 1, 2, 2, 1))
sketch6.addConstraint(Sketcher.Constraint("Coincident", 2, 2, 3, 1))
sketch6.addConstraint(Sketcher.Constraint("Coincident", 3, 2, 0, 1))
sketch6.addConstraint(Sketcher.Constraint("Vertical", 0))
sketch6.addConstraint(Sketcher.Constraint("Horizontal", 1))
sketch6.addConstraint(Sketcher.Constraint("Vertical", 2))
sketch6.addConstraint(Sketcher.Constraint("Horizontal", 3))
sketch6.addConstraint(Sketcher.Constraint("DistanceX", 1, 2, 1, 1, Q("195 mm")))
sketch6.addConstraint(Sketcher.Constraint("DistanceY", 0, 2, 0, 1, Q("40 mm")))
sketch6.addConstraint(Sketcher.Constraint("DistanceY", 0, 2, -1, 1, Q("972.846121 mm")))
sketch6.addConstraint(Sketcher.Constraint("DistanceX", -1, 1, 0, 2, Q("596.686787 mm")))
sketch6.setExpression("Constraints[8]", "Params.sketch6_width")
sketch6.setExpression("Constraints[9]", "Params.sketch6_height")
pocket4 = body.newObject("PartDesign::Pocket", "Pocket003")
pocket4.Profile = sketch6
pocket4.setExpression("Length", "Params.pocket4_length")
pocket4.Reversed = True

doc.recompute()
